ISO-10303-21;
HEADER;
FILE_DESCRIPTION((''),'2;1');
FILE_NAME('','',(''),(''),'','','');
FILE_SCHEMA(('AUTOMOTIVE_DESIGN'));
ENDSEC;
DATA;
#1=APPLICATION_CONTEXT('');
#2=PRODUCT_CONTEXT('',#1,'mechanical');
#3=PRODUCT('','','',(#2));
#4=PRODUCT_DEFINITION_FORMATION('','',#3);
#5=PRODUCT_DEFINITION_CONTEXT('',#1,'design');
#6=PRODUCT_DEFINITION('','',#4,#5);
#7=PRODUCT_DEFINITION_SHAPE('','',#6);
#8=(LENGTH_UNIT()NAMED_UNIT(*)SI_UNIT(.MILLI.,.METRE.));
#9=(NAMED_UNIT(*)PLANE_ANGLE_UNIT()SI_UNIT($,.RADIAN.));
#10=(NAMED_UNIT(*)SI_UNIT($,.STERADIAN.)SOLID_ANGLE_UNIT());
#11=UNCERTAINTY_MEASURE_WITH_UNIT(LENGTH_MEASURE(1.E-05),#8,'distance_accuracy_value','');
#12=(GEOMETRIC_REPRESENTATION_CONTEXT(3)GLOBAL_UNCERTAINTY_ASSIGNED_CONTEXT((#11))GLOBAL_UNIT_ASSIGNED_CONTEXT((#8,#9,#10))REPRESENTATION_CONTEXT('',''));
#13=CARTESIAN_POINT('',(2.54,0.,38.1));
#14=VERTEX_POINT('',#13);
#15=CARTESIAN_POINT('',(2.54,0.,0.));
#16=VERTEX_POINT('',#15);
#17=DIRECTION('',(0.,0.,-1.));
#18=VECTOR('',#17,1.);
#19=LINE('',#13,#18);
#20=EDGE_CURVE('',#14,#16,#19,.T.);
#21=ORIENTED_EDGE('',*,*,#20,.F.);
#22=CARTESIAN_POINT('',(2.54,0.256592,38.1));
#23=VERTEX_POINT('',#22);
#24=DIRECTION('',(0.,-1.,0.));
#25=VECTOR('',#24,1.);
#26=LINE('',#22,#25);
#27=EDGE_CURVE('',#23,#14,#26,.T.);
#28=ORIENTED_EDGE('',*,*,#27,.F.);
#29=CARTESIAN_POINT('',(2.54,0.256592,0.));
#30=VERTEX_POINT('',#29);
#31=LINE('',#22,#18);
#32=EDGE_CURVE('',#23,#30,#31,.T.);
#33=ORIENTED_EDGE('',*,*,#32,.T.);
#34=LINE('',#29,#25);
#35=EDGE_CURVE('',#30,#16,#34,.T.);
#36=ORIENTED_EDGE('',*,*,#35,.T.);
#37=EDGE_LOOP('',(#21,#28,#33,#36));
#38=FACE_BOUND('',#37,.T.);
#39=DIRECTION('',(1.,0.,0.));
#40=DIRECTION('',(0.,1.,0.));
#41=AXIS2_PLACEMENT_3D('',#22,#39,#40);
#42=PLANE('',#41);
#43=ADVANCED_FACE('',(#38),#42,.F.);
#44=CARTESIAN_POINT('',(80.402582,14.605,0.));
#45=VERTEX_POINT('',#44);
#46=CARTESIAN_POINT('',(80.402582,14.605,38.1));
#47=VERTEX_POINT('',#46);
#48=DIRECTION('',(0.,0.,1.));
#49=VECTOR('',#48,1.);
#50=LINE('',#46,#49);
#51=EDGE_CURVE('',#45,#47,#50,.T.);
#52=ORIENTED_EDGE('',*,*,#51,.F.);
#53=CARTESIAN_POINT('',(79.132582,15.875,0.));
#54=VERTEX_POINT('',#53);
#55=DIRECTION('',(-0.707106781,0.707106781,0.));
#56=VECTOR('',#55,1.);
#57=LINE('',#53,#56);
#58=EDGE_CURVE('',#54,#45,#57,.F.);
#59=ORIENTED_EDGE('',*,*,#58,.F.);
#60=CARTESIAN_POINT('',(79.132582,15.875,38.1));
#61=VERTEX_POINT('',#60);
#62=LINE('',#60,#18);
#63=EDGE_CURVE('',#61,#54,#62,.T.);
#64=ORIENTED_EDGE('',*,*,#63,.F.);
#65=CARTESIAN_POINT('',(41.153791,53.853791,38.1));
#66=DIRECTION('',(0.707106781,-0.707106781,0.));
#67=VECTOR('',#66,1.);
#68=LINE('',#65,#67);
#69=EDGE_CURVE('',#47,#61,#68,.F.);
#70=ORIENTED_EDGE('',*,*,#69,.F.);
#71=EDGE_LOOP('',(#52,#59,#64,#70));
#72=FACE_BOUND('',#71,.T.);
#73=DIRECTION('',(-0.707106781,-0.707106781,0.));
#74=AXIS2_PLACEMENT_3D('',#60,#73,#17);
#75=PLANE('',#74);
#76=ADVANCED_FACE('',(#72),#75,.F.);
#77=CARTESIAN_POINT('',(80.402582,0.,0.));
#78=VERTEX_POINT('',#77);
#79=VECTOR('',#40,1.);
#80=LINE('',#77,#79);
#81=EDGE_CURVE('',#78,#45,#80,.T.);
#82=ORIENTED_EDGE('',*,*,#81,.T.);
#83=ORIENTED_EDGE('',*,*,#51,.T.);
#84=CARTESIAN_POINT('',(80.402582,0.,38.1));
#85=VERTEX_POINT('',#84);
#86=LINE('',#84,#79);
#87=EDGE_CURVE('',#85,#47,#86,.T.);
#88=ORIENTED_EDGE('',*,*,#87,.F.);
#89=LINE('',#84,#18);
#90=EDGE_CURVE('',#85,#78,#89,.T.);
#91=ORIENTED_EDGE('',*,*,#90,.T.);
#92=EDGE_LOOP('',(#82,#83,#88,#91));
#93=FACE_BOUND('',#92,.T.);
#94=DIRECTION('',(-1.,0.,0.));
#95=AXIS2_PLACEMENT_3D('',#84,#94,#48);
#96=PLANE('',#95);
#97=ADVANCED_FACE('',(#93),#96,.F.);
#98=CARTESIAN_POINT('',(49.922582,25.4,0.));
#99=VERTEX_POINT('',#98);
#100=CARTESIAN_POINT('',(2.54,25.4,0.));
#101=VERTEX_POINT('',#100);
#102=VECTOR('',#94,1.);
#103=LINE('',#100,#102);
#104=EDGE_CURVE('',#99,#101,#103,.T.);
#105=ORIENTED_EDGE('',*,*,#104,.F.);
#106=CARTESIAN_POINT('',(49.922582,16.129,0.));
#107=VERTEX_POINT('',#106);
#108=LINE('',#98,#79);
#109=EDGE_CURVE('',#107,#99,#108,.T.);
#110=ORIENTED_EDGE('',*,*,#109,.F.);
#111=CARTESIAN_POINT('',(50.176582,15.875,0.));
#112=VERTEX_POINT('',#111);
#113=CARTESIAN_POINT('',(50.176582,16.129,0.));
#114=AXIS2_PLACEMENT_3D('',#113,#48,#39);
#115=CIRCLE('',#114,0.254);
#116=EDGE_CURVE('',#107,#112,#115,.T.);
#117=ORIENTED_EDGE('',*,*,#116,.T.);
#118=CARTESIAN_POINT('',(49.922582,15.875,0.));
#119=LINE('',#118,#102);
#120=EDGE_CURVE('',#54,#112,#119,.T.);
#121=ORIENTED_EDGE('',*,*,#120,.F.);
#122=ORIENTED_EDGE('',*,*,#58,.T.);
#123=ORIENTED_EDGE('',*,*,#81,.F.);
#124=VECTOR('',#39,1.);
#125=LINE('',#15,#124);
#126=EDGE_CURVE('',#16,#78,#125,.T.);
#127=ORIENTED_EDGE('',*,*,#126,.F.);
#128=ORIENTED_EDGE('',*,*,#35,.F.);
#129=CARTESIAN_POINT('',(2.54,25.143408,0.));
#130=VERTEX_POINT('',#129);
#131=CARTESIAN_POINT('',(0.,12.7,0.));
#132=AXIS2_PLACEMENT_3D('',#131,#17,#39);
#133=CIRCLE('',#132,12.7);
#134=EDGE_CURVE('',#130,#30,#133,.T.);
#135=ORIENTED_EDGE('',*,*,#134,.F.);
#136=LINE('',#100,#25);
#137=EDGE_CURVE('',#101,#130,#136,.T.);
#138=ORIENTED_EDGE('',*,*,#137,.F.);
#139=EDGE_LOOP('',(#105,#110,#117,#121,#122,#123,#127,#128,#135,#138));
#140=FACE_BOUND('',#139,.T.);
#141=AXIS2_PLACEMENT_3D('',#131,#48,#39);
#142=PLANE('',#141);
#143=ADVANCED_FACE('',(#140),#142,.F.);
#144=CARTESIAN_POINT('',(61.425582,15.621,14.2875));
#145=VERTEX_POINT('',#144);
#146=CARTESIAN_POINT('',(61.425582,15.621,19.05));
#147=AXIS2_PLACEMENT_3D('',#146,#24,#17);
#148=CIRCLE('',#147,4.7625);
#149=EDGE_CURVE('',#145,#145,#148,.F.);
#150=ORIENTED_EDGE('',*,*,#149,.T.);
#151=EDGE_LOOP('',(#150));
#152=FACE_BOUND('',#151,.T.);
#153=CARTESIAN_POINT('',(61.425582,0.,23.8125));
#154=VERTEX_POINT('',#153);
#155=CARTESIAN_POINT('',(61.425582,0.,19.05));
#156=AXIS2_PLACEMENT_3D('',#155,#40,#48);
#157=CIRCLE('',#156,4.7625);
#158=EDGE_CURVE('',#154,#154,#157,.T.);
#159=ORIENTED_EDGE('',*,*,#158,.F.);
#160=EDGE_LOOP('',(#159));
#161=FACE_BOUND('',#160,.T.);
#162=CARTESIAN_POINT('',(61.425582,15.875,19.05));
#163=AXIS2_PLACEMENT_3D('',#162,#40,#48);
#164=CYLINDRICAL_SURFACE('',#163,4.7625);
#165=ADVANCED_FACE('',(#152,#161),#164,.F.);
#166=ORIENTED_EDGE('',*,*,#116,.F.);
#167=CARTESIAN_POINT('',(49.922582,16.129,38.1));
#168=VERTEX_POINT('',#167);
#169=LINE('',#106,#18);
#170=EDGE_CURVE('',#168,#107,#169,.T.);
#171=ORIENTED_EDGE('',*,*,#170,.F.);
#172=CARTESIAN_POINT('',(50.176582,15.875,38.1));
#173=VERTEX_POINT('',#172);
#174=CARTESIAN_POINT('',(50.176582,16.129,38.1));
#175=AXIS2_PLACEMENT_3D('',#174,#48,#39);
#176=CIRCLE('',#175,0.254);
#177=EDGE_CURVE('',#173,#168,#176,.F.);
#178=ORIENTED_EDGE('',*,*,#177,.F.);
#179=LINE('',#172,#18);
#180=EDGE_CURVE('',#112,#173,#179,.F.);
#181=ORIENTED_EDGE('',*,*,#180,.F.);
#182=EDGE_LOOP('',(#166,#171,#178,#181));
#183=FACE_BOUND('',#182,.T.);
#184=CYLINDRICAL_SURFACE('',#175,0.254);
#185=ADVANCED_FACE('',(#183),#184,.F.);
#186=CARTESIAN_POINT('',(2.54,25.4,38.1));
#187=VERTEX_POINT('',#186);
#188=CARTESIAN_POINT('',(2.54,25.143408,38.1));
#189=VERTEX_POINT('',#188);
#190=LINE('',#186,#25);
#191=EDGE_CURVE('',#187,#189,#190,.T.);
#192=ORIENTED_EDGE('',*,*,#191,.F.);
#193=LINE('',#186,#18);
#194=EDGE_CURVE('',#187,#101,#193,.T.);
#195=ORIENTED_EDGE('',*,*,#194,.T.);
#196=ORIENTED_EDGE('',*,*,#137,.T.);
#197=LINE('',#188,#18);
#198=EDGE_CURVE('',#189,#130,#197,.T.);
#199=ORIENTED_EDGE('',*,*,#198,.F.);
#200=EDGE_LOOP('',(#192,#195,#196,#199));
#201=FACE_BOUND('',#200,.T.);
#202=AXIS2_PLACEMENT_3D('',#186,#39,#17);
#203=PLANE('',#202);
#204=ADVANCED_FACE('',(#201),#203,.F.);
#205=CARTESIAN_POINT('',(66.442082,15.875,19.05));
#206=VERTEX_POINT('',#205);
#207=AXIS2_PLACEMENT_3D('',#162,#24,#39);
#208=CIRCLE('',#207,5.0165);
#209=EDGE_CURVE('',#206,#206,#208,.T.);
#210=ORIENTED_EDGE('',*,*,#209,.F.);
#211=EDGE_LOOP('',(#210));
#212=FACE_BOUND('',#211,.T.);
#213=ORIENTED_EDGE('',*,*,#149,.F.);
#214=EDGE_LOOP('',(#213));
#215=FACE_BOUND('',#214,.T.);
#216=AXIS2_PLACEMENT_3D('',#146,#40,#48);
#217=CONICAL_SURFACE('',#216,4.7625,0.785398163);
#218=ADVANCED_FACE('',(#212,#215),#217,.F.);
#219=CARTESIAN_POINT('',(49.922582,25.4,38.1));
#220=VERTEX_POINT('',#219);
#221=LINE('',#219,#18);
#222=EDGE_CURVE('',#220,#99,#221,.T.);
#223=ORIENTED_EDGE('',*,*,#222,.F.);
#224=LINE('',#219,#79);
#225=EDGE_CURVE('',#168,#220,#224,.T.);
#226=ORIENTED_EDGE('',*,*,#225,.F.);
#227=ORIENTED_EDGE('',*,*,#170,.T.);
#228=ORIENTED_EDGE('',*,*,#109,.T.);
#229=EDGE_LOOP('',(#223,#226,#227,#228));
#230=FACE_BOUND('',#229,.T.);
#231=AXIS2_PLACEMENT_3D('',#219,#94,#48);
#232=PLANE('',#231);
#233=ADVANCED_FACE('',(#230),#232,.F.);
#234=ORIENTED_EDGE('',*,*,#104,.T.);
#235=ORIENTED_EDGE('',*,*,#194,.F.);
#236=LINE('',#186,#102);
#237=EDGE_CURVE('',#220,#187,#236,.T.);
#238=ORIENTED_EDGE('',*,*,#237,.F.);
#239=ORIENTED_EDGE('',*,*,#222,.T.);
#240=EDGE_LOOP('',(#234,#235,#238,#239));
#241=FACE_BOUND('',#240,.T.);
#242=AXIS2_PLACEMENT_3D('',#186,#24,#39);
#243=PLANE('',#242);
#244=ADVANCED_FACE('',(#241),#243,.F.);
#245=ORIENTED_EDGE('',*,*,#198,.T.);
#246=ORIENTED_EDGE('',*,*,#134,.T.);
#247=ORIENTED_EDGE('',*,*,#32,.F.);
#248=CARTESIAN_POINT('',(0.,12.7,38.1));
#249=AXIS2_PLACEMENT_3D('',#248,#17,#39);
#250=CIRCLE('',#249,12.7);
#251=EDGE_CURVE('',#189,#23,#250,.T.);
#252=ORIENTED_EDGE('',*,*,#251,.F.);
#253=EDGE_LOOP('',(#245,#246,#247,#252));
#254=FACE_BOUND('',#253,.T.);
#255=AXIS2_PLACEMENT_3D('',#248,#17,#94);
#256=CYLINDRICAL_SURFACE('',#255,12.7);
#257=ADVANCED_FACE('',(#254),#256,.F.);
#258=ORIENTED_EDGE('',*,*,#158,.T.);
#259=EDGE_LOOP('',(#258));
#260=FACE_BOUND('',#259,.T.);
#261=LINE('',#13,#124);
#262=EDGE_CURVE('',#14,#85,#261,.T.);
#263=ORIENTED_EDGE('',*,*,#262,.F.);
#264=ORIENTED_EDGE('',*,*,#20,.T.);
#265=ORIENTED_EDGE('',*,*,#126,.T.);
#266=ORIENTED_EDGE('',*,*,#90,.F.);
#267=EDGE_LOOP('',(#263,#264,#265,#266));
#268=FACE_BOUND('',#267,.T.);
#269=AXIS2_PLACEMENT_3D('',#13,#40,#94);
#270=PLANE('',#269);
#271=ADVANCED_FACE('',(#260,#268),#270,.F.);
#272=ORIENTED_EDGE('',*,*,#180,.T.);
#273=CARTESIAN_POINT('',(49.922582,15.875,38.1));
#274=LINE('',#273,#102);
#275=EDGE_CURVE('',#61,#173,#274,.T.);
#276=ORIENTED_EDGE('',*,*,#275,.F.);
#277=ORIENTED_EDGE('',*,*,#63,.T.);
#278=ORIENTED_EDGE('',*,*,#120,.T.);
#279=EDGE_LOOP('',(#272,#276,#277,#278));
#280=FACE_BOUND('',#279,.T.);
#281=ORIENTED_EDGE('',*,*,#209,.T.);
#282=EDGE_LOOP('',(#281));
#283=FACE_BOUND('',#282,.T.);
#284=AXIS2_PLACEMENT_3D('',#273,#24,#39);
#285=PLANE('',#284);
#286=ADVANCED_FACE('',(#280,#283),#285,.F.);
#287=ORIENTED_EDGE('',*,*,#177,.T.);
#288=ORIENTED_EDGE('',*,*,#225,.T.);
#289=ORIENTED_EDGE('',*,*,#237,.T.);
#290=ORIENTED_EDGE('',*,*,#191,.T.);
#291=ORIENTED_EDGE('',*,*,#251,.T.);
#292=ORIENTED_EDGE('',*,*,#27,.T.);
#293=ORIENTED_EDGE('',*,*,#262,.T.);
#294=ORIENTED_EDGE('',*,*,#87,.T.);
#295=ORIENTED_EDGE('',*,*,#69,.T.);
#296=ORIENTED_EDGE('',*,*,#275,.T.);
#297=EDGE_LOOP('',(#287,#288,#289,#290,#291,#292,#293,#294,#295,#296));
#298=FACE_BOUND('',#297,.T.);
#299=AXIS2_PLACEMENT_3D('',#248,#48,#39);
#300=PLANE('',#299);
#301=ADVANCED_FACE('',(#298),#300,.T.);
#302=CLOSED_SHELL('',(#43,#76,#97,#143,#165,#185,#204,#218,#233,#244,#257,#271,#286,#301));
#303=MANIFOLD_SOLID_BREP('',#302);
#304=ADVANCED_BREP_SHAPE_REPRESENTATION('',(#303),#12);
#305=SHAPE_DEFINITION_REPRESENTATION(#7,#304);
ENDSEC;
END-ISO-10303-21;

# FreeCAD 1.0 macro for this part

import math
import FreeCAD as App
import Part
import Sketcher
Q = App.Units.Quantity


def edges_at(feature, points):
    """Names of the edges that pass closest to the given points."""
    edges = feature.Shape.Edges
    near = lambda p: min(range(len(edges)), key=lambda i: edges[i].distToShape(Part.Vertex(*p))[0])
    return sorted({f"Edge{near(p) + 1}" for p in points})

doc = App.newDocument("Part")
body = doc.addObject("PartDesign::Body", "Body")

# Sketch on XY plane
sketch1 = body.newObject("Sketcher::SketchObject", "Sketch")
sketch1.AttachmentSupport = (doc.getObject("XY_Plane"), [""])
sketch1.MapMode = "FlatFace"
sketch1.addGeometry(Part.LineSegment(App.Vector(2.54, 0, 0), App.Vector(80.4, 0, 0)), False)
sketch1.addGeometry(Part.LineSegment(App.Vector(80.4, 0, 0), App.Vector(80.4, 15.88, 0)), False)
sketch1.addGeometry(Part.LineSegment(App.Vector(80.4, 15.88, 0), App.Vector(49.92, 15.88, 0)), False)
sketch1.addGeometry(Part.LineSegment(App.Vector(49.92, 15.88, 0), App.Vector(49.92, 25.4, 0)), False)
sketch1.addGeometry(Part.LineSegment(App.Vector(49.92, 25.4, 0), App.Vector(2.54, 25.4, 0)), False)
sketch1.addGeometry(Part.LineSegment(App.Vector(2.54, 25.4, 0), App.Vector(2.54, 25.14, 0)), False)
sketch1.addGeometry(Part.ArcOfCircle(Part.Circle(App.Vector(0, 12.7, 0), App.Vector(0, 0, 1), 12.7), math.radians(-78), math.radians(78)), False)
sketch1.addGeometry(Part.LineSegment(App.Vector(2.54, 0.26, 0), App.Vector(2.54, 0, 0)), False)
sketch1.addConstraint(Sketcher.Constraint("Coincident", 0, 2, 1, 1))
sketch1.addConstraint(Sketcher.Constraint("Coincident", 1, 2, 2, 1))
sketch1.addConstraint(Sketcher.Constraint("Coincident", 2, 2, 3, 1))
sketch1.addConstraint(Sketcher.Constraint("Coincident", 3, 2, 4, 1))
sketch1.addConstraint(Sketcher.Constraint("Coincident", 4, 2, 5, 1))
sketch1.addConstraint(Sketcher.Constraint("Coincident", 5, 2, 6, 2))
sketch1.addConstraint(Sketcher.Constraint("Coincident", 6, 1, 7, 1))
sketch1.addConstraint(Sketcher.Constraint("Coincident", 7, 2, 0, 1))
sketch1.addConstraint(Sketcher.Constraint("Horizontal", 0))
sketch1.addConstraint(Sketcher.Constraint("Vertical", 1))
sketch1.addConstraint(Sketcher.Constraint("Horizontal", 2))
sketch1.addConstraint(Sketcher.Constraint("Vertical", 3))
sketch1.addConstraint(Sketcher.Constraint("Horizontal", 4))
sketch1.addConstraint(Sketcher.Constraint("Vertical", 5))
sketch1.addConstraint(Sketcher.Constraint("Vertical", 7))
sketch1.addConstraint(Sketcher.Constraint("PointOnObject", 6, 3, -2))
sketch1.addConstraint(Sketcher.Constraint("PointOnObject", 0, 2, -1))
sketch1.addConstraint(Sketcher.Constraint("Vertical", 5, 2, 6, 1))
sketch1.addConstraint(Sketcher.Constraint("Equal", 5, 7))
sketch1.addConstraint(Sketcher.Constraint("Radius", 6, Q("0.5 in")))
sketch1.addConstraint(Sketcher.Constraint("DistanceX", 2, 2, 2, 1, Q("1.2 in")))
sketch1.addConstraint(Sketcher.Constraint("DistanceY", -1, 1, 3, 2, Q("1 in")))
sketch1.addConstraint(Sketcher.Constraint("DistanceX", -1, 1, 4, 2, Q("0.1 in")))
sketch1.addConstraint(Sketcher.Constraint("DistanceY", 1, 1, 1, 2, Q("0.625 in")))
sketch1.addConstraint(Sketcher.Constraint("DistanceX", 0, 1, 0, 2, 77.862582))
pad1 = body.newObject("PartDesign::Pad", "Pad")
pad1.Profile = sketch1
pad1.Length = Q("1.5 in")

# Sketch on XZ plane
sketch2 = body.newObject("Sketcher::SketchObject", "Sketch001")
sketch2.AttachmentSupport = (doc.getObject("XZ_Plane"), [""])
sketch2.MapMode = "FlatFace"
sketch2.AttachmentOffset = App.Placement(App.Vector(0, 0, -0.625 * 25.4), App.Rotation())
sketch2.addGeometry(Part.Circle(App.Vector(61.4, 19.1, 0), App.Vector(0, 0, 1), 4.8), False)
sketch2.addConstraint(Sketcher.Constraint("Diameter", 0, Q("0.375 in")))
sketch2.addConstraint(Sketcher.Constraint("DistanceY", -1, 1, 0, 3, Q("0.75 in")))
sketch2.addConstraint(Sketcher.Constraint("DistanceX", -1, 1, 0, 3, 61.425582))
doc.recompute()
hole = body.newObject("PartDesign::Hole", "Hole")
hole.Profile = sketch2
hole.ThreadType = "None"
hole.Diameter = Q("0.375 in")
hole.DepthType = "ThroughAll"
hole.Reversed = True
doc.recompute()

chamfer = body.newObject("PartDesign::Chamfer", "Chamfer")
chamfer.Base = (hole, edges_at(hole, [(80.403, 15.875, 19.05)]))
chamfer.Size = Q("0.05 in")
doc.recompute()

chamfer2 = body.newObject("PartDesign::Chamfer", "Chamfer001")
chamfer2.Base = (chamfer, edges_at(chamfer, [(66.188, 15.875, 19.05)]))
chamfer2.Size = Q("0.01 in")
doc.recompute()

fillet = body.newObject("PartDesign::Fillet", "Fillet")
fillet.Base = (chamfer2, edges_at(chamfer2, [(49.923, 15.875, 19.05)]))
fillet.Radius = Q("0.01 in")

doc.recompute()
